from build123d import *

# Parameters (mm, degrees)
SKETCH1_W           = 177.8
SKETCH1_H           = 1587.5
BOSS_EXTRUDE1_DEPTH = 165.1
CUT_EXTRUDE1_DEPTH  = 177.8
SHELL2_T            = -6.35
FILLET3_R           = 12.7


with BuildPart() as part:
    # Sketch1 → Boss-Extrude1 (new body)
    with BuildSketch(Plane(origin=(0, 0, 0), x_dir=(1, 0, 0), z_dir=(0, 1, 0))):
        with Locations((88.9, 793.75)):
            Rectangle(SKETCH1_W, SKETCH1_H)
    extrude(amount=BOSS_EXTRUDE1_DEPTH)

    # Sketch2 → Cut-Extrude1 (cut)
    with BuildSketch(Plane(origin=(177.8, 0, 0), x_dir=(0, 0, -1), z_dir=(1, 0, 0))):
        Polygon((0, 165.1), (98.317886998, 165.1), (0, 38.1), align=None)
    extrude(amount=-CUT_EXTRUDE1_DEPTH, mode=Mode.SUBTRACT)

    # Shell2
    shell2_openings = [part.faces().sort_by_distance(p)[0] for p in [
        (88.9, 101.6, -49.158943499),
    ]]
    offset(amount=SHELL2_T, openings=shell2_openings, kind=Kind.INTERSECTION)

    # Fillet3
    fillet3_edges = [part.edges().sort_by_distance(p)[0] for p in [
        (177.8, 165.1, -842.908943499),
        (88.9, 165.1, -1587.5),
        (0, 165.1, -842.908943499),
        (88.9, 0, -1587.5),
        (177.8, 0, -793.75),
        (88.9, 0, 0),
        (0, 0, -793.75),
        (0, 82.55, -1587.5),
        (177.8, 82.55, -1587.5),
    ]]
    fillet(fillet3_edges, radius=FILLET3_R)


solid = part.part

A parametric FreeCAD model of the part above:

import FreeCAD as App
import Part
import Sketcher

V = App.Vector
Q = App.Units.Quantity


def edges_at(feature, points):
    """Names of the edges that pass closest to the given points."""
    edges = feature.Shape.Edges
    near = lambda p: min(range(len(edges)), key=lambda i: edges[i].distToShape(Part.Vertex(*p))[0])
    return sorted({f"Edge{near(p) + 1}" for p in points})


def faces_at(feature, points):
    """Names of the faces that lie closest to the given points."""
    faces = feature.Shape.Faces
    near = lambda p: min(range(len(faces)), key=lambda i: faces[i].distToShape(Part.Vertex(*p))[0])
    return sorted({f"Face{near(p) + 1}" for p in points})


def add_polygon(sketch, points):
    """Adds a closed chain of lines whose ends are joined by coincident constraints."""
    first, n = sketch.GeometryCount, len(points)
    for a, b in zip(points, points[1:] + points[:1]):
        sketch.addGeometry(Part.LineSegment(App.Vector(*a, 0), App.Vector(*b, 0)), False)
    for i in range(n):
        sketch.addConstraint(Sketcher.Constraint("Coincident", first + i, 2, first + (i + 1) % n, 1))

doc = App.newDocument("Part")
body = doc.addObject("PartDesign::Body", "Body")

# Sketch on XZ plane
sketch1 = body.newObject("Sketcher::SketchObject", "Sketch")
sketch1.AttachmentSupport = (doc.getObject("XZ_Plane"), [""])
sketch1.MapMode = "FlatFace"
add_polygon(sketch1, [(0, -1588), (0, 0), (178, 0), (178, -1588)])  # lines 0-3
sketch1.addConstraint([
    Sketcher.Constraint("Vertical", 0),
    Sketcher.Constraint("Horizontal", 1),
    Sketcher.Constraint("Vertical", 2),
    Sketcher.Constraint("Horizontal", 3),
    Sketcher.Constraint("Coincident", 0, 2, -1, 1),
    Sketcher.Constraint("DistanceX", 1, 1, 1, 2, Q("7 in")),
    Sketcher.Constraint("DistanceY", 0, 1, 0, 2, Q("62.5 in")),
])
pad1 = body.newObject("PartDesign::Pad", "Pad")
pad1.Profile = sketch1
pad1.Length = Q("6.5 in")
pad1.Reversed = True

# Sketch on YZ plane
sketch2 = body.newObject("Sketcher::SketchObject", "Sketch001")
sketch2.AttachmentSupport = (doc.getObject("YZ_Plane"), [""])
sketch2.MapMode = "FlatFace"
sketch2.AttachmentOffset = App.Placement(V(0, 0, 7 * 25.4), App.Rotation())
add_polygon(sketch2, [(165, -98), (165, 0), (38, 0)])  # lines 0-2
sketch2.addConstraint([
    Sketcher.Constraint("Vertical", 0),
    Sketcher.Constraint("Horizontal", 1),
    Sketcher.Constraint("PointOnObject", 0, 2, -1),
    Sketcher.Constraint("DistanceX", 1, 2, 1, 1, Q("5 in")),
    Sketcher.Constraint("DistanceX", -1, 1, 0, 2, Q("6.5 in")),
    Sketcher.Constraint("DistanceY", 0, 1, 0, 2, 98.317887),
])
pocket1 = body.newObject("PartDesign::Pocket", "Pocket")
pocket1.Profile = sketch2
pocket1.Length = Q("7 in")
doc.recompute()

thickness = body.newObject("PartDesign::Thickness", "Thickness")
thickness.Base = (pocket1, faces_at(pocket1, [(88.9, 101.6, -49.159)]))
thickness.Value = Q("0.25 in")
thickness.Reversed = True
thickness.Join = "Intersection"
doc.recompute()

fillet = body.newObject("PartDesign::Fillet", "Fillet")
fillet.Base = (thickness, edges_at(thickness, [
    (177.8, 165.1, -842.909),
    (88.9, 165.1, -1587.5),
    (0, 165.1, -842.909),
    (88.9, 0, -1587.5),
    (177.8, 0, -793.75),
    (88.9, 0, 0),
    (0, 0, -793.75),
    (0, 82.55, -1587.5),
    (177.8, 82.55, -1587.5),
]))
fillet.Radius = Q("0.5 in")

doc.recompute()
